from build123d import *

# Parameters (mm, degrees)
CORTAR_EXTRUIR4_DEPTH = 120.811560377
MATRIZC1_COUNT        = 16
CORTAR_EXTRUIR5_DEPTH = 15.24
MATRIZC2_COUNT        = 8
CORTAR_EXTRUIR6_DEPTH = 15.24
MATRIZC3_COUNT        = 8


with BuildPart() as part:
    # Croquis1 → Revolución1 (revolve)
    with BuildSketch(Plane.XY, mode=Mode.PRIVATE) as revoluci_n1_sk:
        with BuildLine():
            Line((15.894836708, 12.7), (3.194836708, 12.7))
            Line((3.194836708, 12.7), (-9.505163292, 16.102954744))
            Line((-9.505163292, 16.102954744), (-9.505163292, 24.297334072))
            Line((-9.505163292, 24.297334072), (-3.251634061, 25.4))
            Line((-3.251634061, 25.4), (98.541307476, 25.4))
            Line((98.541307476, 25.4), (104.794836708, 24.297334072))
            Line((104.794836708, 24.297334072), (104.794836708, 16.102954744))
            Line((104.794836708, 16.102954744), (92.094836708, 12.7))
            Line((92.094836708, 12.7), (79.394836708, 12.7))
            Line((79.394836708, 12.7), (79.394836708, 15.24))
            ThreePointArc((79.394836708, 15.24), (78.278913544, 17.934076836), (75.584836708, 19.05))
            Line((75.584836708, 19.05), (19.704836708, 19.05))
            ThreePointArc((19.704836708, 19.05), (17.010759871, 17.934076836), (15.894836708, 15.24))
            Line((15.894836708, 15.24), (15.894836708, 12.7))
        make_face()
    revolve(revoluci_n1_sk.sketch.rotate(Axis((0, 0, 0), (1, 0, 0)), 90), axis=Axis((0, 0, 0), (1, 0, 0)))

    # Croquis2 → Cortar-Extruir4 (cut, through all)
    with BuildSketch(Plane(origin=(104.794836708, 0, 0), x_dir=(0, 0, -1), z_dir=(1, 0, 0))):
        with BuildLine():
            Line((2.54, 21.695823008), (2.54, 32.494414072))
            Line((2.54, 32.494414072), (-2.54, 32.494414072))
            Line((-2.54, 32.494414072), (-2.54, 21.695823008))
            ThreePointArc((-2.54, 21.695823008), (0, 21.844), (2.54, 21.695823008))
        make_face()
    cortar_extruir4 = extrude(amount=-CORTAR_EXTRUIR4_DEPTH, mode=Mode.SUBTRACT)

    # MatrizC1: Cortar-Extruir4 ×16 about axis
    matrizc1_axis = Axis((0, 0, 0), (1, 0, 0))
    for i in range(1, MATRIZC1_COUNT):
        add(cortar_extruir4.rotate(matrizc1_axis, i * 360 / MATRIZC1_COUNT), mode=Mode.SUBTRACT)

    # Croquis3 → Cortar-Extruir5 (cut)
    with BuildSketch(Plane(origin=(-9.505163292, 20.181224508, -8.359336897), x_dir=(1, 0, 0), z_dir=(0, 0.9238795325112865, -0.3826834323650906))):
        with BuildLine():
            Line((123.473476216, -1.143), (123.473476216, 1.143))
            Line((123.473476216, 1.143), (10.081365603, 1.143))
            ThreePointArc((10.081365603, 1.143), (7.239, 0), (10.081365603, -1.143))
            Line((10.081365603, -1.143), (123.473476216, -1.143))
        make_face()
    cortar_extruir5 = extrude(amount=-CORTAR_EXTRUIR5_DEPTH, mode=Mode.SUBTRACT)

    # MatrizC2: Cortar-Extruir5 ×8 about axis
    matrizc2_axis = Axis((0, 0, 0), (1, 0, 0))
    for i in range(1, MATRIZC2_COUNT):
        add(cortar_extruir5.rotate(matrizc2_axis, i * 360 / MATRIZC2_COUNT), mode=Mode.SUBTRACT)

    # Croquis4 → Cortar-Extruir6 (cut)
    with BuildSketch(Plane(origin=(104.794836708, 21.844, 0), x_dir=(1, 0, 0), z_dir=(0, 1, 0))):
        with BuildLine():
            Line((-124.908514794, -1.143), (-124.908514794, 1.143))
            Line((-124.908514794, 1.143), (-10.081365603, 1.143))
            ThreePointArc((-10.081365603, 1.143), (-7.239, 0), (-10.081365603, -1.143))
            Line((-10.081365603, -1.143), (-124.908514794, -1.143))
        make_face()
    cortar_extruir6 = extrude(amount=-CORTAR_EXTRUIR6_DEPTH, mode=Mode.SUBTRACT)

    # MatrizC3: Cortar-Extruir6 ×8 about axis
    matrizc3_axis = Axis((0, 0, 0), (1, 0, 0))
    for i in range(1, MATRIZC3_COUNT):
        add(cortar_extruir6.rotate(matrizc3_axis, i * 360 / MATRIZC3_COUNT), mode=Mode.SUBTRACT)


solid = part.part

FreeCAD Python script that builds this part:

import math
import FreeCAD as App
import Part
import Sketcher
from FreeCAD import Vector
Q = App.Units.Quantity

doc = App.newDocument("Part")
params = doc.addObject("Spreadsheet::Sheet", "Params")
for row, (alias, value) in enumerate([
    ("sketch1_radius", "0.15 in"),
    ("sketch1_width", "0.5 in"),
    ("sketch1_width2", "2.2 in"),
    ("sketch1_height", "0.1 in"),
    ("sketch1_length", "0.25 in"),
    ("revolution_angle", "360 deg"),
    ("sketch2_radius", "0.86 in"),
    ("sketch2_height", "0.2 in"),
    ("sketch3_radius", "0.065 in"),
    ("sketch3_height", "0.09 in"),
    ("pocket2_length", "0.6 in"),
    ("sketch4_radius", "0.065 in"),
    ("sketch4_height", "0.09 in"),
    ("pocket3_length", "0.6 in"),
], start=1):
    params.set(f"A{row}", alias)
    params.set(f"B{row}", "=" + value)
    params.setAlias(f"B{row}", alias)

body = doc.addObject("PartDesign::Body", "Body")

# Sketch on XY plane
sketch1 = doc.addObject("Sketcher::SketchObject", "Sketch")
body.addObject(sketch1)
sketch1.AttachmentSupport = (doc.XY_Plane, [""])
sketch1.MapMode = "FlatFace"
sketch1.addGeometry([
    Part.LineSegment(Vector(3.2, 12.7, 0), Vector(15.9, 12.7, 0)),  # 0
    Part.LineSegment(Vector(15.9, 12.7, 0), Vector(15.9, 15.2, 0)),  # 1
    Part.ArcOfCircle(Part.Circle(Vector(19.7, 15.2, 0), Vector(0, 0, 1), 3.8), math.radians(90), math.radians(180)),  # 2
    Part.LineSegment(Vector(19.7, 19.1, 0), Vector(75.6, 19.1, 0)),  # 3
    Part.ArcOfCircle(Part.Circle(Vector(75.6, 15.2, 0), Vector(0, 0, 1), 3.8), math.radians(0), math.radians(90)),  # 4
    Part.LineSegment(Vector(79.4, 15.2, 0), Vector(79.4, 12.7, 0)),  # 5
    Part.LineSegment(Vector(79.4, 12.7, 0), Vector(92.1, 12.7, 0)),  # 6
    Part.LineSegment(Vector(92.1, 12.7, 0), Vector(104.8, 16.1, 0)),  # 7
    Part.LineSegment(Vector(104.8, 16.1, 0), Vector(104.8, 24.3, 0)),  # 8
    Part.LineSegment(Vector(104.8, 24.3, 0), Vector(98.5, 25.4, 0)),  # 9
    Part.LineSegment(Vector(98.5, 25.4, 0), Vector(-3.3, 25.4, 0)),  # 10
    Part.LineSegment(Vector(-3.3, 25.4, 0), Vector(-9.5, 24.3, 0)),  # 11
    Part.LineSegment(Vector(-9.5, 24.3, 0), Vector(-9.5, 16.1, 0)),  # 12
    Part.LineSegment(Vector(-9.5, 16.1, 0), Vector(3.2, 12.7, 0)),  # 13
], False)
sketch1.addConstraint([
    Sketcher.Constraint("Coincident", 0, 2, 1, 1),
    Sketcher.Constraint("Tangent", 1, 2, 2, 2),
    Sketcher.Constraint("Tangent", 2, 1, 3, 1),
    Sketcher.Constraint("Tangent", 3, 2, 4, 2),
    Sketcher.Constraint("Tangent", 4, 1, 5, 1),
    Sketcher.Constraint("Coincident", 5, 2, 6, 1),
    Sketcher.Constraint("Coincident", 6, 2, 7, 1),
    Sketcher.Constraint("Coincident", 7, 2, 8, 1),
    Sketcher.Constraint("Coincident", 8, 2, 9, 1),
    Sketcher.Constraint("Coincident", 9, 2, 10, 1),
    Sketcher.Constraint("Coincident", 10, 2, 11, 1),
    Sketcher.Constraint("Coincident", 11, 2, 12, 1),
    Sketcher.Constraint("Coincident", 12, 2, 13, 1),
    Sketcher.Constraint("Coincident", 13, 2, 0, 1),
    Sketcher.Constraint("Horizontal", 0),
    Sketcher.Constraint("Vertical", 1),
    Sketcher.Constraint("Horizontal", 3),
    Sketcher.Constraint("Vertical", 5),
    Sketcher.Constraint("Horizontal", 6),
    Sketcher.Constraint("Vertical", 8),
    Sketcher.Constraint("Horizontal", 10),
    Sketcher.Constraint("Vertical", 12),
    Sketcher.Constraint("Equal", 2, 4),
    Sketcher.Constraint("Horizontal", 0, 2, 5, 2),
    Sketcher.Constraint("Horizontal", 8, 2, 11, 2),
    Sketcher.Constraint("Horizontal", 7, 2, 12, 2),
    Sketcher.Constraint("Equal", 0, 6),
    Sketcher.Constraint("Equal", 9, 11),
    Sketcher.Constraint("Equal", 7, 13),
    Sketcher.Constraint("Radius", 2, Q("0.15 in")),
    Sketcher.Constraint("DistanceX", 0, 1, 0, 2, Q("0.5 in")),
    Sketcher.Constraint("DistanceX", 3, 1, 3, 2, Q("2.2 in")),
    Sketcher.Constraint("DistanceY", 1, 1, 1, 2, Q("0.1 in")),
    Sketcher.Constraint("DistanceY", -1, 1, 9, 2, Q("1 in")),
    Sketcher.Constraint("Angle", 7, Q("15 deg")),
    Sketcher.Constraint("Angle", 9, Q("170 deg")),
    Sketcher.Constraint("DistanceX", 4, 1, 7, 2, Q("1 in")),
    Sketcher.Constraint("DistanceY", -1, 1, 2, 3, Q("0.6 in")),
    Sketcher.Constraint("Distance", 9, Q("0.25 in")),
    Sketcher.Constraint("DistanceX", -1, 1, 2, 3, Q("19.704837 mm")),
])
sketch1.setExpression("Constraints[29]", "Params.sketch1_radius")
sketch1.setExpression("Constraints[30]", "Params.sketch1_width")
sketch1.setExpression("Constraints[31]", "Params.sketch1_width2")
sketch1.setExpression("Constraints[32]", "Params.sketch1_height")
sketch1.setExpression("Constraints[38]", "Params.sketch1_length")
revolution = doc.addObject("PartDesign::Revolution", "Revolution")
body.addObject(revolution)
revolution.Profile = sketch1
revolution.ReferenceAxis = (sketch1, ["H_Axis"])
revolution.setExpression("Angle", "Params.revolution_angle")

# Sketch on YZ plane
sketch2 = doc.addObject("Sketcher::SketchObject", "Sketch001")
body.addObject(sketch2)
sketch2.AttachmentSupport = (doc.YZ_Plane, [""])
sketch2.MapMode = "FlatFace"
sketch2.AttachmentOffset = App.Placement(Vector(0, 0, 104.794837), App.Rotation())
sketch2.addGeometry([
    Part.LineSegment(Vector(22, -3, 0), Vector(32, -3, 0)),
    Part.LineSegment(Vector(32, -3, 0), Vector(32, 3, 0)),
    Part.LineSegment(Vector(32, 3, 0), Vector(22, 3, 0)),
    Part.ArcOfCircle(Part.Circle(Vector(0, 0, 0), Vector(0, 0, 1), 22), math.radians(-6.68), math.radians(6.68)),
], False)
sketch2.addConstraint([
    Sketcher.Constraint("Coincident", 0, 2, 1, 1),
    Sketcher.Constraint("Coincident", 1, 2, 2, 1),
    Sketcher.Constraint("Coincident", 2, 2, 3, 2),
    Sketcher.Constraint("Coincident", 3, 1, 0, 1),
    Sketcher.Constraint("Horizontal", 0),
    Sketcher.Constraint("Vertical", 1),
    Sketcher.Constraint("Horizontal", 2),
    Sketcher.Constraint("Coincident", 3, 3, -1, 1),
    Sketcher.Constraint("Vertical", 2, 2, 3, 1),
    Sketcher.Constraint("Radius", 3, Q("0.86 in")),
    Sketcher.Constraint("DistanceY", 1, 1, 1, 2, Q("0.2 in")),
    Sketcher.Constraint("DistanceX", 0, 1, 0, 2, Q("10.798591 mm")),
])
sketch2.setExpression("Constraints[9]", "Params.sketch2_radius")
sketch2.setExpression("Constraints[10]", "Params.sketch2_height")
pocket1 = doc.addObject("PartDesign::Pocket", "Pocket")
body.addObject(pocket1)
pocket1.Profile = sketch2
pocket1.Type = "ThroughAll"
doc.recompute()

polarpattern = doc.addObject("PartDesign::PolarPattern", "PolarPattern")
body.addObject(polarpattern)
polarpattern.Originals = [pocket1]
polarpattern.Axis = (doc.X_Axis, [""])
polarpattern.Angle = 360
polarpattern.Occurrences = 16
body.Tip = polarpattern

# Sketch on an angled plane
sketch3 = doc.addObject("Sketcher::SketchObject", "Sketch002")
body.addObject(sketch3)
sketch3.Placement = App.Placement(Vector(-9.505163, 20.181225, -8.359337), App.Rotation(Vector(1, 0, 0), Vector(0, -0.382683432, -0.923879533), Vector(0, 0.923879533, -0.382683432), "ZXY"))
sketch3.addGeometry([
    Part.LineSegment(Vector(123.5, -1.1, 0), Vector(123.5, 1.1, 0)),
    Part.LineSegment(Vector(123.5, 1.1, 0), Vector(10.1, 1.1, 0)),
    Part.ArcOfCircle(Part.Circle(Vector(8.9, 0, 0), Vector(0, 0, 1), 1.7), math.radians(44), math.radians(316)),
    Part.LineSegment(Vector(10.1, -1.1, 0), Vector(123.5, -1.1, 0)),
], False)
sketch3.addConstraint([
    Sketcher.Constraint("Coincident", 0, 2, 1, 1),
    Sketcher.Constraint("Coincident", 1, 2, 2, 1),
    Sketcher.Constraint("Coincident", 2, 2, 3, 1),
    Sketcher.Constraint("Coincident", 3, 2, 0, 1),
    Sketcher.Constraint("Vertical", 0),
    Sketcher.Constraint("Horizontal", 1),
    Sketcher.Constraint("Horizontal", 3),
    Sketcher.Constraint("Symmetric", 1, 2, 2, 2, -1),
    Sketcher.Constraint("Radius", 2, Q("0.065 in")),
    Sketcher.Constraint("DistanceY", 0, 1, 0, 2, Q("0.09 in")),
    Sketcher.Constraint("DistanceX", -1, 1, 2, 3, Q("0.35 in")),
    Sketcher.Constraint("DistanceX", 1, 2, 1, 1, Q("113.392111 mm")),
])
sketch3.setExpression("Constraints[8]", "Params.sketch3_radius")
sketch3.setExpression("Constraints[9]", "Params.sketch3_height")
pocket2 = doc.addObject("PartDesign::Pocket", "Pocket001")
body.addObject(pocket2)
pocket2.Profile = sketch3
pocket2.setExpression("Length", "Params.pocket2_length")
doc.recompute()

polarpattern2 = doc.addObject("PartDesign::PolarPattern", "PolarPattern001")
body.addObject(polarpattern2)
polarpattern2.Originals = [pocket2]
polarpattern2.Axis = (doc.X_Axis, [""])
polarpattern2.Angle = 360
polarpattern2.Occurrences = 8
body.Tip = polarpattern2

# Sketch on XZ plane
sketch4 = doc.addObject("Sketcher::SketchObject", "Sketch003")
body.addObject(sketch4)
sketch4.AttachmentSupport = (doc.XZ_Plane, [""])
sketch4.MapMode = "FlatFace"
sketch4.AttachmentOffset = App.Placement(Vector(0, 0, -0.86 * 25.4), App.Rotation())
sketch4.addGeometry([
    Part.LineSegment(Vector(-20.1, -1.1, 0), Vector(-20.1, 1.1, 0)),
    Part.LineSegment(Vector(-20.1, 1.1, 0), Vector(94.7, 1.1, 0)),
    Part.ArcOfCircle(Part.Circle(Vector(95.9, 0, 0), Vector(0, 0, 1), 1.7), math.radians(-136), math.radians(136)),
    Part.LineSegment(Vector(94.7, -1.1, 0), Vector(-20.1, -1.1, 0)),
], False)
sketch4.addConstraint([
    Sketcher.Constraint("Coincident", 0, 2, 1, 1),
    Sketcher.Constraint("Coincident", 1, 2, 2, 2),
    Sketcher.Constraint("Coincident", 2, 1, 3, 1),
    Sketcher.Constraint("Coincident", 3, 2, 0, 1),
    Sketcher.Constraint("Vertical", 0),
    Sketcher.Constraint("Horizontal", 1),
    Sketcher.Constraint("Horizontal", 3),
    Sketcher.Constraint("Symmetric", 1, 2, 2, 1, -1),
    Sketcher.Constraint("Radius", 2, Q("0.065 in")),
    Sketcher.Constraint("DistanceY", 0, 1, 0, 2, Q("0.09 in")),
    Sketcher.Constraint("DistanceX", 1, 1, 1, 2, Q("114.827149 mm")),
    Sketcher.Constraint("DistanceX", 0, 2, -1, 1, Q("20.113678 mm")),
])
sketch4.setExpression("Constraints[8]", "Params.sketch4_radius")
sketch4.setExpression("Constraints[9]", "Params.sketch4_height")
pocket3 = doc.addObject("PartDesign::Pocket", "Pocket002")
body.addObject(pocket3)
pocket3.Profile = sketch4
pocket3.setExpression("Length", "Params.pocket3_length")
pocket3.Reversed = True
doc.recompute()

polarpattern3 = doc.addObject("PartDesign::PolarPattern", "PolarPattern002")
body.addObject(polarpattern3)
polarpattern3.Originals = [pocket3]
polarpattern3.Axis = (doc.X_Axis, [""])
polarpattern3.Angle = 360
polarpattern3.Occurrences = 8
body.Tip = polarpattern3

doc.recompute()
